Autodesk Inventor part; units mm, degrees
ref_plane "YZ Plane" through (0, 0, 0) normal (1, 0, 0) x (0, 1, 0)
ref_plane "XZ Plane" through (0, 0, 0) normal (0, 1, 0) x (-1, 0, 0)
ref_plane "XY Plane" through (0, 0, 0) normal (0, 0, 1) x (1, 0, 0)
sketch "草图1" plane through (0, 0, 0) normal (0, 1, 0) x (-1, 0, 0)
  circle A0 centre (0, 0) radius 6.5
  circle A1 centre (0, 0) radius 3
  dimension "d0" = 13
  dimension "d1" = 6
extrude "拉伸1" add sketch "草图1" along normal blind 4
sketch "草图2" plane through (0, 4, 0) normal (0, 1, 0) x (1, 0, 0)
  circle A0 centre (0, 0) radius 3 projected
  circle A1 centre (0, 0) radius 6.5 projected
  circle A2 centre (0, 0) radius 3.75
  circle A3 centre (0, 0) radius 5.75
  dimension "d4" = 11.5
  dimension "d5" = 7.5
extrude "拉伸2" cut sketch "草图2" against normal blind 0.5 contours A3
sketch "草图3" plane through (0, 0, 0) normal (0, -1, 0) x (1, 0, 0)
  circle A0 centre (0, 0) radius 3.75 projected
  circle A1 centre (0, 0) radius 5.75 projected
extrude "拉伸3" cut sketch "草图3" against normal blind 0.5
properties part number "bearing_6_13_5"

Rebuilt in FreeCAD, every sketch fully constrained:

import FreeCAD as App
import Part
import Sketcher
Q = App.Units.Quantity

doc = App.newDocument("Part")
body = doc.addObject("PartDesign::Body", "Body")

sketch1 = body.newObject("Sketcher::SketchObject", "Sketch")
sketch1.AttachmentSupport = (doc.getObject("XZ_Plane"), [""])
sketch1.MapMode = "FlatFace"
sketch1.addGeometry([
    Part.Circle(App.Vector(0, 0, 0), App.Vector(0, 0, 1), 6.5),
    Part.Circle(App.Vector(0, 0, 0), App.Vector(0, 0, 1), 3),
], False)
sketch1.addConstraint([
    Sketcher.Constraint("Coincident", 0, 3, -1, 1),
    Sketcher.Constraint("Coincident", 1, 3, -1, 1),
    Sketcher.Constraint("Diameter", 0, Q("13 mm")),
    Sketcher.Constraint("Diameter", 1, Q("6 mm")),
])
pad1 = body.newObject("PartDesign::Pad", "Pad")
pad1.Profile = sketch1
pad1.Length = 4
pad1.Reversed = True

sketch2 = body.newObject("Sketcher::SketchObject", "Sketch001")
sketch2.AttachmentSupport = (doc.getObject("XZ_Plane"), [""])
sketch2.MapMode = "FlatFace"
sketch2.AttachmentOffset = App.Placement(App.Vector(0, 0, -4), App.Rotation())
sketch2.addGeometry([
    Part.Circle(App.Vector(0, 0, 0), App.Vector(0, 0, 1), 5.75),
    Part.Circle(App.Vector(0, 0, 0), App.Vector(0, 0, 1), 3.75),
], False)
sketch2.addConstraint([
    Sketcher.Constraint("Coincident", 0, 3, -1, 1),
    Sketcher.Constraint("Coincident", 1, 3, -1, 1),
    Sketcher.Constraint("Diameter", 0, Q("11.5 mm")),
    Sketcher.Constraint("Diameter", 1, Q("7.5 mm")),
])
pocket1 = body.newObject("PartDesign::Pocket", "Pocket")
pocket1.Profile = sketch2
pocket1.Length = 0.5
pocket1.Reversed = True

sketch3 = body.newObject("Sketcher::SketchObject", "Sketch002")
sketch3.AttachmentSupport = (doc.getObject("XZ_Plane"), [""])
sketch3.MapMode = "FlatFace"
sketch3.addGeometry([
    Part.Circle(App.Vector(0, 0, 0), App.Vector(0, 0, 1), 5.75),
    Part.Circle(App.Vector(0, 0, 0), App.Vector(0, 0, 1), 3.75),
], False)
sketch3.addConstraint([
    Sketcher.Constraint("Coincident", 0, 3, -1, 1),
    Sketcher.Constraint("Coincident", 1, 3, -1, 1),
    Sketcher.Constraint("Diameter", 0, Q("11.5 mm")),
    Sketcher.Constraint("Diameter", 1, Q("7.5 mm")),
])
pocket2 = body.newObject("PartDesign::Pocket", "Pocket001")
pocket2.Profile = sketch3
pocket2.Length = 0.5

doc.recompute()
